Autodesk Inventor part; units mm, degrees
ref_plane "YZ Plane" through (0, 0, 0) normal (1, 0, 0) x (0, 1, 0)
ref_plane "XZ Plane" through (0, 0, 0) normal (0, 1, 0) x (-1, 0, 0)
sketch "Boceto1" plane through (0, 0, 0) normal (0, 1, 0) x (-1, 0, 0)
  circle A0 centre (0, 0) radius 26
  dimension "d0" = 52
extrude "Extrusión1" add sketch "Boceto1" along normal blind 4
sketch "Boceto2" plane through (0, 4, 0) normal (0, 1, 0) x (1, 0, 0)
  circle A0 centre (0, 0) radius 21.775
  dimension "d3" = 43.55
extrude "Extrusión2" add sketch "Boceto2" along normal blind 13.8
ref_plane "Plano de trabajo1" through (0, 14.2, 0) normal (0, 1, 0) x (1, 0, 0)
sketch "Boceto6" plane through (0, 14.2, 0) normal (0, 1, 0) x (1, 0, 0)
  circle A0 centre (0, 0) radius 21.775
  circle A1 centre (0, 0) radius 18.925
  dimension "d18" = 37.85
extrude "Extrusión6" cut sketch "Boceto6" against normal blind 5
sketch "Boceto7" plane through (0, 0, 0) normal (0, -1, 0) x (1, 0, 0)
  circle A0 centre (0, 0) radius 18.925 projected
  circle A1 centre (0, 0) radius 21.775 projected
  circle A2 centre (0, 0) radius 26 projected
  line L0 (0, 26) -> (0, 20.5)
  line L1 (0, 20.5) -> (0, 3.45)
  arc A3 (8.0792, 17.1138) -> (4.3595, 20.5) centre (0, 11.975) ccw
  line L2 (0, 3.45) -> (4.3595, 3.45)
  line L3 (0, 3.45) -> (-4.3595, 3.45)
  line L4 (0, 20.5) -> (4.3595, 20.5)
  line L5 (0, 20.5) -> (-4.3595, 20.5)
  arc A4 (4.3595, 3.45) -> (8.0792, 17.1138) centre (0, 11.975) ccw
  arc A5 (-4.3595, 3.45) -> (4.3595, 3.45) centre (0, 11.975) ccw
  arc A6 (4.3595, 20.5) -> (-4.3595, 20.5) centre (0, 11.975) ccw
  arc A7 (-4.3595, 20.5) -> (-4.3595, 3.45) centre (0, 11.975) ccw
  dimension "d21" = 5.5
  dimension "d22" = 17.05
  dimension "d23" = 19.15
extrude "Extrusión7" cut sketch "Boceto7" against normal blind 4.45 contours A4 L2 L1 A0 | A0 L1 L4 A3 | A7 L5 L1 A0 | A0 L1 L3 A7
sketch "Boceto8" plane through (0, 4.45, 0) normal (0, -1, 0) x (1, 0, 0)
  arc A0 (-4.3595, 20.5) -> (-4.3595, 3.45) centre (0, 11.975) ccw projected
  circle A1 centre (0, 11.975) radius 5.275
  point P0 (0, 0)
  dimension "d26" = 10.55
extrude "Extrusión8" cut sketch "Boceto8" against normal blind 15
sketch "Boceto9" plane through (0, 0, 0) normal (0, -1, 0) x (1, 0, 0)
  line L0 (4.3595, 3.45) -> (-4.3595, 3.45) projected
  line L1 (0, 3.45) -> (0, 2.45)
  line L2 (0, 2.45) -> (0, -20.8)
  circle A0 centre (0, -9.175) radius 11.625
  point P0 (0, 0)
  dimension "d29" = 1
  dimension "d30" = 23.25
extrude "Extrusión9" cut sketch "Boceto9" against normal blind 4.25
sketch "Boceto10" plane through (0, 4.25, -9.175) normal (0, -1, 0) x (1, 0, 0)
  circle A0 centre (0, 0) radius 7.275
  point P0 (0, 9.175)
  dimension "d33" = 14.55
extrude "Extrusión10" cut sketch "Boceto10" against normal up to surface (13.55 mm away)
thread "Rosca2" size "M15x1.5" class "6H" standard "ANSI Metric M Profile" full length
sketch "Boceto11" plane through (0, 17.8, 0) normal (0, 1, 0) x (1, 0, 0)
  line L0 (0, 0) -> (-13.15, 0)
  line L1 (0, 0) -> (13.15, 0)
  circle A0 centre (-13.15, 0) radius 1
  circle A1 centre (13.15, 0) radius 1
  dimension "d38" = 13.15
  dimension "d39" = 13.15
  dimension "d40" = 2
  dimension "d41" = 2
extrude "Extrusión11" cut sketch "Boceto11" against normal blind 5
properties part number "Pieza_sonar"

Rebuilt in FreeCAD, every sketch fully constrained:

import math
import FreeCAD as App
import Part
import Sketcher

V = App.Vector
Q = App.Units.Quantity

doc = App.newDocument("Part")
params = doc.addObject("Spreadsheet::Sheet", "Params")
for row, (alias, value) in enumerate([
    ("sketch1_diameter", "52 mm"),
    ("pad1_length", "4 mm"),
    ("sketch2_diameter", "43.55 mm"),
    ("pad2_length", "13.8 mm"),
    ("sketch3_diameter", "37.85 mm"),
    ("sketch3_diameter2", "43.55 mm"),
    ("pocket1_length", "5 mm"),
    ("pocket2_length", "4.45 mm"),
    ("sketch5_diameter", "10.55 mm"),
    ("pocket3_length", "15 mm"),
    ("sketch6_diameter", "23.25 mm"),
    ("pocket4_length", "4.25 mm"),
    ("sketch7_diameter", "14.55 mm"),
    ("pocket5_length", "13.55 mm"),
    ("sketch8_diameter", "2 mm"),
    ("pocket6_length", "5 mm"),
], start=1):
    params.set(f"A{row}", alias)
    params.set(f"B{row}", "=" + value)
    params.setAlias(f"B{row}", alias)

body = doc.addObject("PartDesign::Body", "Body")

# Sketch on XZ plane
sketch1 = body.newObject("Sketcher::SketchObject", "Sketch")
sketch1.AttachmentSupport = (doc.getObject("XZ_Plane"), [""])
sketch1.MapMode = "FlatFace"
sketch1.addGeometry(Part.Circle(V(0, 0, 0), V(0, 0, 1), 26), False)
sketch1.addConstraint(Sketcher.Constraint("Coincident", 0, 3, -1, 1))
sketch1.addConstraint(Sketcher.Constraint("Diameter", 0, Q("52 mm")))
sketch1.setExpression("Constraints[1]", "Params.sketch1_diameter")
pad1 = body.newObject("PartDesign::Pad", "Pad")
pad1.Profile = sketch1
pad1.setExpression("Length", "Params.pad1_length")
pad1.Reversed = True

# Sketch on XZ plane
sketch2 = body.newObject("Sketcher::SketchObject", "Sketch001")
sketch2.AttachmentSupport = (doc.getObject("XZ_Plane"), [""])
sketch2.MapMode = "FlatFace"
sketch2.AttachmentOffset = App.Placement(V(0, 0, -4), App.Rotation())
sketch2.addGeometry(Part.Circle(V(0, 0, 0), V(0, 0, 1), 22), False)
sketch2.addConstraint(Sketcher.Constraint("Coincident", 0, 3, -1, 1))
sketch2.addConstraint(Sketcher.Constraint("Diameter", 0, Q("43.55 mm")))
sketch2.setExpression("Constraints[1]", "Params.sketch2_diameter")
pad2 = body.newObject("PartDesign::Pad", "Pad001")
pad2.Profile = sketch2
pad2.setExpression("Length", "Params.pad2_length")
pad2.Reversed = True

# Sketch on XZ plane
sketch3 = body.newObject("Sketcher::SketchObject", "Sketch002")
sketch3.AttachmentSupport = (doc.getObject("XZ_Plane"), [""])
sketch3.MapMode = "FlatFace"
sketch3.AttachmentOffset = App.Placement(V(0, 0, -14.2), App.Rotation())
sketch3.addGeometry(Part.Circle(V(0, 0, 0), V(0, 0, 1), 22), False)
sketch3.addGeometry(Part.Circle(V(0, 0, 0), V(0, 0, 1), 19), False)
sketch3.addConstraint(Sketcher.Constraint("Coincident", 0, 3, -1, 1))
sketch3.addConstraint(Sketcher.Constraint("Coincident", 1, 3, -1, 1))
sketch3.addConstraint(Sketcher.Constraint("Diameter", 1, Q("37.85 mm")))
sketch3.addConstraint(Sketcher.Constraint("Diameter", 0, Q("43.55 mm")))
sketch3.setExpression("Constraints[2]", "Params.sketch3_diameter")
sketch3.setExpression("Constraints[3]", "Params.sketch3_diameter2")
pocket1 = body.newObject("PartDesign::Pocket", "Pocket")
pocket1.Profile = sketch3
pocket1.setExpression("Length", "Params.pocket1_length")
pocket1.Reversed = True

# Sketch on XZ plane
sketch4 = body.newObject("Sketcher::SketchObject", "Sketch003")
sketch4.AttachmentSupport = (doc.getObject("XZ_Plane"), [""])
sketch4.MapMode = "FlatFace"
sketch4.addGeometry(Part.ArcOfCircle(Part.Circle(V(0, 12, 0), V(0, 0, 1), 10), math.radians(-63), math.radians(32)), False)
sketch4.addGeometry(Part.ArcOfCircle(Part.Circle(V(0, 12, 0), V(0, 0, 1), 10), math.radians(32), math.radians(63)), False)
sketch4.addGeometry(Part.LineSegment(V(4, 20, 0), V(-4, 20, 0)), False)
sketch4.addGeometry(Part.ArcOfCircle(Part.Circle(V(0, 12, 0), V(0, 0, 1), 10), math.radians(117), math.radians(243)), False)
sketch4.addGeometry(Part.LineSegment(V(-4, 3, 0), V(4, 3, 0)), False)
sketch4.addConstraint(Sketcher.Constraint("Tangent", 0, 2, 1, 1))
sketch4.addConstraint(Sketcher.Constraint("Coincident", 1, 2, 2, 1))
sketch4.addConstraint(Sketcher.Constraint("Coincident", 2, 2, 3, 1))
sketch4.addConstraint(Sketcher.Constraint("Coincident", 3, 2, 4, 1))
sketch4.addConstraint(Sketcher.Constraint("Coincident", 4, 2, 0, 1))
sketch4.addConstraint(Sketcher.Constraint("Horizontal", 2))
sketch4.addConstraint(Sketcher.Constraint("Horizontal", 4))
sketch4.addConstraint(Sketcher.Constraint("Coincident", 3, 3, 0, 3))
sketch4.addConstraint(Sketcher.Constraint("Equal", 0, 1))
sketch4.addConstraint(Sketcher.Constraint("Equal", 1, 3))
sketch4.addConstraint(Sketcher.Constraint("PointOnObject", 0, 3, -2))
sketch4.addConstraint(Sketcher.Constraint("Vertical", 2, 2, 3, 2))
sketch4.addConstraint(Sketcher.Constraint("Radius", 0, Q("9.575 mm")))
sketch4.addConstraint(Sketcher.Constraint("DistanceY", 3, 2, 2, 2, Q("17.05 mm")))
sketch4.addConstraint(Sketcher.Constraint("DistanceY", -1, 1, 1, 2, Q("20.5 mm")))
sketch4.addConstraint(Sketcher.Constraint("DistanceX", -1, 1, 0, 2, Q("8.0792 mm")))
pocket2 = body.newObject("PartDesign::Pocket", "Pocket001")
pocket2.Profile = sketch4
pocket2.setExpression("Length", "Params.pocket2_length")

# Sketch on XZ plane
sketch5 = body.newObject("Sketcher::SketchObject", "Sketch004")
sketch5.AttachmentSupport = (doc.getObject("XZ_Plane"), [""])
sketch5.MapMode = "FlatFace"
sketch5.AttachmentOffset = App.Placement(V(0, 0, -4.45), App.Rotation())
sketch5.addGeometry(Part.Circle(V(0, 12, 0), V(0, 0, 1), 5), False)
sketch5.addConstraint(Sketcher.Constraint("PointOnObject", 0, 3, -2))
sketch5.addConstraint(Sketcher.Constraint("Diameter", 0, Q("10.55 mm")))
sketch5.addConstraint(Sketcher.Constraint("DistanceY", -1, 1, 0, 3, Q("11.975 mm")))
sketch5.setExpression("Constraints[1]", "Params.sketch5_diameter")
pocket3 = body.newObject("PartDesign::Pocket", "Pocket002")
pocket3.Profile = sketch5
pocket3.setExpression("Length", "Params.pocket3_length")

# Sketch on XZ plane
sketch6 = body.newObject("Sketcher::SketchObject", "Sketch005")
sketch6.AttachmentSupport = (doc.getObject("XZ_Plane"), [""])
sketch6.MapMode = "FlatFace"
sketch6.addGeometry(Part.Circle(V(0, -9, 0), V(0, 0, 1), 12), False)
sketch6.addConstraint(Sketcher.Constraint("PointOnObject", 0, 3, -2))
sketch6.addConstraint(Sketcher.Constraint("Diameter", 0, Q("23.25 mm")))
sketch6.addConstraint(Sketcher.Constraint("DistanceY", 0, 3, -1, 1, Q("9.175 mm")))
sketch6.setExpression("Constraints[1]", "Params.sketch6_diameter")
pocket4 = body.newObject("PartDesign::Pocket", "Pocket003")
pocket4.Profile = sketch6
pocket4.setExpression("Length", "Params.pocket4_length")

# Sketch on XZ plane
sketch7 = body.newObject("Sketcher::SketchObject", "Sketch006")
sketch7.AttachmentSupport = (doc.getObject("XZ_Plane"), [""])
sketch7.MapMode = "FlatFace"
sketch7.AttachmentOffset = App.Placement(V(0, 0, -4.25), App.Rotation())
sketch7.addGeometry(Part.Circle(V(0, -9, 0), V(0, 0, 1), 7), False)
sketch7.addConstraint(Sketcher.Constraint("PointOnObject", 0, 3, -2))
sketch7.addConstraint(Sketcher.Constraint("Diameter", 0, Q("14.55 mm")))
sketch7.addConstraint(Sketcher.Constraint("DistanceY", 0, 3, -1, 1, Q("9.175 mm")))
sketch7.setExpression("Constraints[1]", "Params.sketch7_diameter")
pocket5 = body.newObject("PartDesign::Pocket", "Pocket004")
pocket5.Profile = sketch7
pocket5.setExpression("Length", "Params.pocket5_length")

# Sketch on XZ plane
sketch8 = body.newObject("Sketcher::SketchObject", "Sketch007")
sketch8.AttachmentSupport = (doc.getObject("XZ_Plane"), [""])
sketch8.MapMode = "FlatFace"
sketch8.AttachmentOffset = App.Placement(V(0, 0, -17.8), App.Rotation())
sketch8.addGeometry(Part.Circle(V(-13.2, 0, 0), V(0, 0, 1), 1), False)
sketch8.addGeometry(Part.Circle(V(13.2, 0, 0), V(0, 0, 1), 1), False)
sketch8.addConstraint(Sketcher.Constraint("Equal", 0, 1))
sketch8.addConstraint(Sketcher.Constraint("Symmetric", 0, 3, 1, 3, -1, 1))
sketch8.addConstraint(Sketcher.Constraint("PointOnObject", 0, 3, -1))
sketch8.addConstraint(Sketcher.Constraint("Diameter", 0, Q("2 mm")))
sketch8.addConstraint(Sketcher.Constraint("DistanceX", 0, 3, -1, 1, Q("13.15 mm")))
sketch8.setExpression("Constraints[3]", "Params.sketch8_diameter")
pocket6 = body.newObject("PartDesign::Pocket", "Pocket005")
pocket6.Profile = sketch8
pocket6.setExpression("Length", "Params.pocket6_length")
pocket6.Reversed = True

doc.recompute()
